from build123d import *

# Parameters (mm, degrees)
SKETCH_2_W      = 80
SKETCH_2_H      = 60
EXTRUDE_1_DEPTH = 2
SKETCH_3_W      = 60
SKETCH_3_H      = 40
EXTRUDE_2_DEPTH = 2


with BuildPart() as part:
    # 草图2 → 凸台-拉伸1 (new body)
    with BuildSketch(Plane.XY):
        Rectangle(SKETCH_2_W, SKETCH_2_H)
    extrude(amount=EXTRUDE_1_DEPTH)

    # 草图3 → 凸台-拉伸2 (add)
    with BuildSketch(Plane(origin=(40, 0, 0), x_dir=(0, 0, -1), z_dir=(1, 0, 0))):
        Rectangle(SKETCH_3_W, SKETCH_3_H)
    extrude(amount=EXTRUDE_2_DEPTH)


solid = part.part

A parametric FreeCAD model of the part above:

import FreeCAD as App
import Part
import Sketcher

V = App.Vector
Q = App.Units.Quantity

doc = App.newDocument("Part")
body = doc.addObject("PartDesign::Body", "Body")

# Sketch on XY plane
sketch1 = doc.addObject("Sketcher::SketchObject", "Sketch")
body.addObject(sketch1)
sketch1.AttachmentSupport = (doc.XY_Plane, [""])
sketch1.MapMode = "FlatFace"
sketch1.addGeometry(Part.LineSegment(V(-40, 30, 0), V(-40, -30, 0)), False)
sketch1.addGeometry(Part.LineSegment(V(-40, -30, 0), V(40, -30, 0)), False)
sketch1.addGeometry(Part.LineSegment(V(40, -30, 0), V(40, 30, 0)), False)
sketch1.addGeometry(Part.LineSegment(V(40, 30, 0), V(-40, 30, 0)), False)
sketch1.addConstraint(Sketcher.Constraint("Coincident", 0, 2, 1, 1))
sketch1.addConstraint(Sketcher.Constraint("Coincident", 1, 2, 2, 1))
sketch1.addConstraint(Sketcher.Constraint("Coincident", 2, 2, 3, 1))
sketch1.addConstraint(Sketcher.Constraint("Coincident", 3, 2, 0, 1))
sketch1.addConstraint(Sketcher.Constraint("Vertical", 0))
sketch1.addConstraint(Sketcher.Constraint("Horizontal", 1))
sketch1.addConstraint(Sketcher.Constraint("Vertical", 2))
sketch1.addConstraint(Sketcher.Constraint("Horizontal", 3))
sketch1.addConstraint(Sketcher.Constraint("Symmetric", 0, 2, 2, 2, -1, 1))
sketch1.addConstraint(Sketcher.Constraint("DistanceX", 1, 1, 1, 2, Q("80 mm")))
sketch1.addConstraint(Sketcher.Constraint("DistanceY", 0, 2, 0, 1, Q("60 mm")))
pad1 = doc.addObject("PartDesign::Pad", "Pad")
body.addObject(pad1)
pad1.Profile = sketch1
pad1.Length = 2

# Sketch on YZ plane
sketch2 = doc.addObject("Sketcher::SketchObject", "Sketch001")
body.addObject(sketch2)
sketch2.AttachmentSupport = (doc.YZ_Plane, [""])
sketch2.MapMode = "FlatFace"
sketch2.AttachmentOffset = App.Placement(V(0, 0, 40), App.Rotation())
sketch2.addGeometry(Part.LineSegment(V(20, 30, 0), V(-20, 30, 0)), False)
sketch2.addGeometry(Part.LineSegment(V(-20, 30, 0), V(-20, -30, 0)), False)
sketch2.addGeometry(Part.LineSegment(V(-20, -30, 0), V(20, -30, 0)), False)
sketch2.addGeometry(Part.LineSegment(V(20, -30, 0), V(20, 30, 0)), False)
sketch2.addConstraint(Sketcher.Constraint("Coincident", 0, 2, 1, 1))
sketch2.addConstraint(Sketcher.Constraint("Coincident", 1, 2, 2, 1))
sketch2.addConstraint(Sketcher.Constraint("Coincident", 2, 2, 3, 1))
sketch2.addConstraint(Sketcher.Constraint("Coincident", 3, 2, 0, 1))
sketch2.addConstraint(Sketcher.Constraint("Horizontal", 0))
sketch2.addConstraint(Sketcher.Constraint("Vertical", 1))
sketch2.addConstraint(Sketcher.Constraint("Horizontal", 2))
sketch2.addConstraint(Sketcher.Constraint("Vertical", 3))
sketch2.addConstraint(Sketcher.Constraint("Symmetric", 0, 2, 2, 2, -1, 1))
sketch2.addConstraint(Sketcher.Constraint("DistanceX", 0, 2, 0, 1, Q("40 mm")))
sketch2.addConstraint(Sketcher.Constraint("DistanceY", 1, 2, 1, 1, Q("60 mm")))
pad2 = doc.addObject("PartDesign::Pad", "Pad001")
body.addObject(pad2)
pad2.Profile = sketch2
pad2.Length = 2

doc.recompute()
